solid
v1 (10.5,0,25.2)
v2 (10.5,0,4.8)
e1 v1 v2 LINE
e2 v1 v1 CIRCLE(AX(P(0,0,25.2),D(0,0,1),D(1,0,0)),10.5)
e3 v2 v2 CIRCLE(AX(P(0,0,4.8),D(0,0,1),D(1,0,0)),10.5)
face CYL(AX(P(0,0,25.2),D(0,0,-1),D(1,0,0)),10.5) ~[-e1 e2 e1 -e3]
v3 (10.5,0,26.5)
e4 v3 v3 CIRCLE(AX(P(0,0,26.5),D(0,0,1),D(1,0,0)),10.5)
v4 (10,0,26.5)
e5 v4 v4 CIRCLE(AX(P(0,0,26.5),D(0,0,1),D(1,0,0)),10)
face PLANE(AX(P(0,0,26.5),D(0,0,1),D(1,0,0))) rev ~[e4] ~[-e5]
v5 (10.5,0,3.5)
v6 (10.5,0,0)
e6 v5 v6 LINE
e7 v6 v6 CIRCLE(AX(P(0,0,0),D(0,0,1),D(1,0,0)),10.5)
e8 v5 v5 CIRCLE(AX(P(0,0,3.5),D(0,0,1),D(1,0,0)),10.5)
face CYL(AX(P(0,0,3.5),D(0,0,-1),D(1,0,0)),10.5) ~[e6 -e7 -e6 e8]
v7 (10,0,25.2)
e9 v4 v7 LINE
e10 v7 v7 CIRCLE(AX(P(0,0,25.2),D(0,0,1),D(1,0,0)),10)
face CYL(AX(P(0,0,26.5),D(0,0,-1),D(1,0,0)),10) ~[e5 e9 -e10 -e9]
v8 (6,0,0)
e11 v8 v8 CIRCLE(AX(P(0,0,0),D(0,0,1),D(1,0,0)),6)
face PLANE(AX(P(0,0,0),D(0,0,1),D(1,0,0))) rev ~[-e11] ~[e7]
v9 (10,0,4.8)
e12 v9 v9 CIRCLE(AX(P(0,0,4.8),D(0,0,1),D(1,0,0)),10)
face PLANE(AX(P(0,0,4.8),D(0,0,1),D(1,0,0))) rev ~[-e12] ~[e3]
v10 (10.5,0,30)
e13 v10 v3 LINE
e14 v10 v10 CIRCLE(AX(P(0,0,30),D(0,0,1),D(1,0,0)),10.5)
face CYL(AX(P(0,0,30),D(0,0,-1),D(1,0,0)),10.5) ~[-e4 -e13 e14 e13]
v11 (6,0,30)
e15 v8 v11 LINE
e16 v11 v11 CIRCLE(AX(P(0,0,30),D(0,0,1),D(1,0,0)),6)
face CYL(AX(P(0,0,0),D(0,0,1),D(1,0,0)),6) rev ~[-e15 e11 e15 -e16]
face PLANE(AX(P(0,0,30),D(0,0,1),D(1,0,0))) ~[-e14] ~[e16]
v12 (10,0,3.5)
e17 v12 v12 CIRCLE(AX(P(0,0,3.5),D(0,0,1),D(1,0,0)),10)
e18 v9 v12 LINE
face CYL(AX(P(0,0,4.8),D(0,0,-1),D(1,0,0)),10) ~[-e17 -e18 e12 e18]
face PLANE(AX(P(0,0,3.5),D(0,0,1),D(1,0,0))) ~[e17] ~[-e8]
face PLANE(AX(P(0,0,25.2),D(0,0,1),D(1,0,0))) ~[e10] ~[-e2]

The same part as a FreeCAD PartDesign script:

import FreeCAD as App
import Part
import Sketcher


def add_polygon(sketch, points):
    """Adds a closed chain of lines whose ends are joined by coincident constraints."""
    first, n = sketch.GeometryCount, len(points)
    for a, b in zip(points, points[1:] + points[:1]):
        sketch.addGeometry(Part.LineSegment(App.Vector(*a, 0), App.Vector(*b, 0)), False)
    for i in range(n):
        sketch.addConstraint(Sketcher.Constraint("Coincident", first + i, 2, first + (i + 1) % n, 1))

doc = App.newDocument("Part")
body = doc.addObject("PartDesign::Body", "Body")

# Sketch on XZ plane
sketch1 = doc.addObject("Sketcher::SketchObject", "Sketch")
body.addObject(sketch1)
sketch1.AttachmentSupport = (doc.XZ_Plane, [""])
sketch1.MapMode = "FlatFace"
add_polygon(sketch1, [(10.5, 0), (6, 0), (6, 30), (10.5, 30), (10.5, 26.5), (10, 26.5), (10, 25.2), (10.5, 25.2), (10.5, 4.8), (10, 4.8), (10, 3.5), (10.5, 3.5)])  # lines 0-11
sketch1.addConstraint([
    Sketcher.Constraint("Horizontal", 0),
    Sketcher.Constraint("Vertical", 1),
    Sketcher.Constraint("Horizontal", 2),
    Sketcher.Constraint("Vertical", 3),
    Sketcher.Constraint("Horizontal", 4),
    Sketcher.Constraint("Vertical", 5),
    Sketcher.Constraint("Horizontal", 6),
    Sketcher.Constraint("Vertical", 7),
    Sketcher.Constraint("Horizontal", 8),
    Sketcher.Constraint("Vertical", 9),
    Sketcher.Constraint("Horizontal", 10),
    Sketcher.Constraint("Vertical", 11),
    Sketcher.Constraint("PointOnObject", 0, 2, -1),
    Sketcher.Constraint("Vertical", 3, 2, 6, 2),
    Sketcher.Constraint("Vertical", 5, 2, 8, 2),
    Sketcher.Constraint("Vertical", 7, 2, 10, 2),
    Sketcher.Constraint("Equal", 5, 9),
    Sketcher.Constraint("Equal", 3, 11),
    Sketcher.Constraint("DistanceY", 1, 1, 1, 2, 30.0),
    Sketcher.Constraint("DistanceX", 0, 2, 0, 1, 4.5),
    Sketcher.Constraint("DistanceX", 4, 2, 4, 1, 0.5),
    Sketcher.Constraint("DistanceY", 3, 2, 3, 1, 3.5),
    Sketcher.Constraint("DistanceY", 5, 2, 5, 1, 1.3),
    Sketcher.Constraint("DistanceX", -1, 1, 0, 2, 6.0),
])
revolution = doc.addObject("PartDesign::Revolution", "Revolution")
body.addObject(revolution)
revolution.Profile = sketch1
revolution.ReferenceAxis = (sketch1, ["V_Axis"])
revolution.Angle = 360

doc.recompute()
